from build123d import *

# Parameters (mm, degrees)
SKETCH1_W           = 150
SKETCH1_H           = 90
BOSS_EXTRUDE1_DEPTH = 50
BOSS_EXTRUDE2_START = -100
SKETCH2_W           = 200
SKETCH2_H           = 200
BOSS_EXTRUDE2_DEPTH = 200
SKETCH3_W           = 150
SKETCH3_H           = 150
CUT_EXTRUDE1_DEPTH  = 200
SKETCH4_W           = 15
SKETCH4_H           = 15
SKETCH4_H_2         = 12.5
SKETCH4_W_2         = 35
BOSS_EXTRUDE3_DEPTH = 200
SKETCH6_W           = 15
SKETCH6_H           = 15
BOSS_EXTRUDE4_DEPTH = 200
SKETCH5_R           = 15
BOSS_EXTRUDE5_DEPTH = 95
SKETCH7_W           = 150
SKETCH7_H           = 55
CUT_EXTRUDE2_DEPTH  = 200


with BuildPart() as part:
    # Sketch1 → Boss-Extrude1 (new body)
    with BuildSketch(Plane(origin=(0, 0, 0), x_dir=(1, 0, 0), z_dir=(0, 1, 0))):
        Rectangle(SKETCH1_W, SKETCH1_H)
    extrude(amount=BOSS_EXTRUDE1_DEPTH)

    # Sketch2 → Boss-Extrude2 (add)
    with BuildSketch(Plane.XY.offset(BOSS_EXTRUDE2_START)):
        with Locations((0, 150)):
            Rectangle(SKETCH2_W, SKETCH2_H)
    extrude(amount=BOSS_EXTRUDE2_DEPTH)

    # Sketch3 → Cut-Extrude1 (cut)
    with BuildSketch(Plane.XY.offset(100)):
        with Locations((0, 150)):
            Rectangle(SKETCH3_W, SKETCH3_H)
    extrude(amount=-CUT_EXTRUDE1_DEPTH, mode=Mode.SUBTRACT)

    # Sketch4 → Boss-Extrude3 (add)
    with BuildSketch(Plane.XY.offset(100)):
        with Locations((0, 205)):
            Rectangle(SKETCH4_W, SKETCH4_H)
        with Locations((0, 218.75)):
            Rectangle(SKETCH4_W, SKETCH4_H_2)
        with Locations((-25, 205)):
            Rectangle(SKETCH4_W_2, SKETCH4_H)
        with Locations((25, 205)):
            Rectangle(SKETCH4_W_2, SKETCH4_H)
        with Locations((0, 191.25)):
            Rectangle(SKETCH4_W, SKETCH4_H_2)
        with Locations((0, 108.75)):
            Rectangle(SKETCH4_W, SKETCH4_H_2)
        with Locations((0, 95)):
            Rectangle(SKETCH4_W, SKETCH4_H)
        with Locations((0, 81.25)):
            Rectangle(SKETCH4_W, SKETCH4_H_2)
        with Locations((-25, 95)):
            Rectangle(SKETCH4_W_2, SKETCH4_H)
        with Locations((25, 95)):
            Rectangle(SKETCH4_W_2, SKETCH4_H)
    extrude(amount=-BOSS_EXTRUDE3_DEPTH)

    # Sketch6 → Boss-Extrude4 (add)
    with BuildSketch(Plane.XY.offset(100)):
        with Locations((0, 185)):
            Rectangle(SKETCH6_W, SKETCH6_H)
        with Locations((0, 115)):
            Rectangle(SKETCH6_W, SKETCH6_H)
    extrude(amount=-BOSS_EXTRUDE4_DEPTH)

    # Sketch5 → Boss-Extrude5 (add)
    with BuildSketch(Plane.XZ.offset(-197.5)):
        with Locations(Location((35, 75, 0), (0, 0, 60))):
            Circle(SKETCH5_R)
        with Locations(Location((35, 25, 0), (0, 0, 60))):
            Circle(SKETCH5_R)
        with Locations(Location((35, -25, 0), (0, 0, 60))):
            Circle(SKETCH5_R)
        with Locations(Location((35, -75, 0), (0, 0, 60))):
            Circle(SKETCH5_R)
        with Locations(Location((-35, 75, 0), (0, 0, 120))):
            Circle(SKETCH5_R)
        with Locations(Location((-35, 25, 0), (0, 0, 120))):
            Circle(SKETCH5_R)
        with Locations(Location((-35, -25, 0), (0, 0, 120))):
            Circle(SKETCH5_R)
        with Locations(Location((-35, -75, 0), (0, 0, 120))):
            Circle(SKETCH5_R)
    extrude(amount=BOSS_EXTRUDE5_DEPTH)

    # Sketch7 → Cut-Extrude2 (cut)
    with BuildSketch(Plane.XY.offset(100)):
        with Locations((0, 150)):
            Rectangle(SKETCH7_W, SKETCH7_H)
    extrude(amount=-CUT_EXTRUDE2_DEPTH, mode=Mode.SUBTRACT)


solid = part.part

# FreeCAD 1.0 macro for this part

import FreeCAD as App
import Part
import Sketcher
from FreeCAD import Vector
Q = App.Units.Quantity

doc = App.newDocument("Part")
body = doc.addObject("PartDesign::Body", "Body")

# Sketch on XZ plane
sketch1 = body.newObject("Sketcher::SketchObject", "Sketch")
sketch1.AttachmentSupport = (doc.getObject("XZ_Plane"), [""])
sketch1.MapMode = "FlatFace"
sketch1.addGeometry([
    Part.LineSegment(Vector(-75, -45, 0), Vector(-75, 45, 0)),
    Part.LineSegment(Vector(-75, 45, 0), Vector(75, 45, 0)),
    Part.LineSegment(Vector(75, 45, 0), Vector(75, -45, 0)),
    Part.LineSegment(Vector(75, -45, 0), Vector(-75, -45, 0)),
], False)
sketch1.addConstraint([
    Sketcher.Constraint("Coincident", 0, 2, 1, 1),
    Sketcher.Constraint("Coincident", 1, 2, 2, 1),
    Sketcher.Constraint("Coincident", 2, 2, 3, 1),
    Sketcher.Constraint("Coincident", 3, 2, 0, 1),
    Sketcher.Constraint("Vertical", 0),
    Sketcher.Constraint("Horizontal", 1),
    Sketcher.Constraint("Vertical", 2),
    Sketcher.Constraint("Horizontal", 3),
    Sketcher.Constraint("Symmetric", 0, 2, 2, 2, -1, 1),
    Sketcher.Constraint("DistanceX", 1, 1, 1, 2, Q("150 mm")),
    Sketcher.Constraint("DistanceY", 0, 1, 0, 2, Q("90 mm")),
])
pad1 = body.newObject("PartDesign::Pad", "Pad")
pad1.Profile = sketch1
pad1.Length = 50
pad1.Reversed = True

# Sketch on XY plane
sketch2 = body.newObject("Sketcher::SketchObject", "Sketch001")
sketch2.AttachmentSupport = (doc.getObject("XY_Plane"), [""])
sketch2.MapMode = "FlatFace"
sketch2.AttachmentOffset = App.Placement(Vector(0, 0, -100), App.Rotation())
sketch2.addGeometry([
    Part.LineSegment(Vector(-100, 250, 0), Vector(-100, 50, 0)),
    Part.LineSegment(Vector(-100, 50, 0), Vector(100, 50, 0)),
    Part.LineSegment(Vector(100, 50, 0), Vector(100, 250, 0)),
    Part.LineSegment(Vector(100, 250, 0), Vector(-100, 250, 0)),
], False)
sketch2.addConstraint([
    Sketcher.Constraint("Coincident", 0, 2, 1, 1),
    Sketcher.Constraint("Coincident", 1, 2, 2, 1),
    Sketcher.Constraint("Coincident", 2, 2, 3, 1),
    Sketcher.Constraint("Coincident", 3, 2, 0, 1),
    Sketcher.Constraint("Vertical", 0),
    Sketcher.Constraint("Horizontal", 1),
    Sketcher.Constraint("Vertical", 2),
    Sketcher.Constraint("Horizontal", 3),
    Sketcher.Constraint("Equal", 3, 0),
    Sketcher.Constraint("DistanceX", 1, 1, 1, 2, Q("200 mm")),
    Sketcher.Constraint("DistanceX", 0, 2, -1, 1, Q("100 mm")),
    Sketcher.Constraint("DistanceY", -1, 1, 0, 2, Q("50 mm")),
])
pad2 = body.newObject("PartDesign::Pad", "Pad001")
pad2.Profile = sketch2
pad2.Length = 200

# Sketch on XY plane
sketch3 = body.newObject("Sketcher::SketchObject", "Sketch002")
sketch3.AttachmentSupport = (doc.getObject("XY_Plane"), [""])
sketch3.MapMode = "FlatFace"
sketch3.AttachmentOffset = App.Placement(Vector(0, 0, 100), App.Rotation())
sketch3.addGeometry([
    Part.LineSegment(Vector(-75, 225, 0), Vector(-75, 75, 0)),
    Part.LineSegment(Vector(-75, 75, 0), Vector(75, 75, 0)),
    Part.LineSegment(Vector(75, 75, 0), Vector(75, 225, 0)),
    Part.LineSegment(Vector(75, 225, 0), Vector(-75, 225, 0)),
], False)
sketch3.addConstraint([
    Sketcher.Constraint("Coincident", 0, 2, 1, 1),
    Sketcher.Constraint("Coincident", 1, 2, 2, 1),
    Sketcher.Constraint("Coincident", 2, 2, 3, 1),
    Sketcher.Constraint("Coincident", 3, 2, 0, 1),
    Sketcher.Constraint("Vertical", 0),
    Sketcher.Constraint("Horizontal", 1),
    Sketcher.Constraint("Vertical", 2),
    Sketcher.Constraint("Horizontal", 3),
    Sketcher.Constraint("Equal", 3, 0),
    Sketcher.Constraint("DistanceX", 1, 1, 1, 2, Q("150 mm")),
    Sketcher.Constraint("DistanceX", 0, 2, -1, 1, Q("75 mm")),
    Sketcher.Constraint("DistanceY", -1, 1, 0, 2, Q("75 mm")),
])
pocket1 = body.newObject("PartDesign::Pocket", "Pocket")
pocket1.Profile = sketch3
pocket1.Length = 200

# Sketch on XY plane
sketch4 = body.newObject("Sketcher::SketchObject", "Sketch003")
sketch4.AttachmentSupport = (doc.getObject("XY_Plane"), [""])
sketch4.MapMode = "FlatFace"
sketch4.AttachmentOffset = App.Placement(Vector(0, 0, 100), App.Rotation())
sketch4.addGeometry([
    Part.LineSegment(Vector(7.5, 212.5, 0), Vector(7.5, 225, 0)),  # 0
    Part.LineSegment(Vector(7.5, 225, 0), Vector(-7.5, 225, 0)),  # 1
    Part.LineSegment(Vector(-7.5, 225, 0), Vector(-7.5, 212.5, 0)),  # 2
    Part.LineSegment(Vector(-7.5, 212.5, 0), Vector(-42.5, 212.5, 0)),  # 3
    Part.LineSegment(Vector(-42.5, 212.5, 0), Vector(-42.5, 197.5, 0)),  # 4
    Part.LineSegment(Vector(-42.5, 197.5, 0), Vector(-7.5, 197.5, 0)),  # 5
    Part.LineSegment(Vector(-7.5, 197.5, 0), Vector(-7.5, 185, 0)),  # 6
    Part.LineSegment(Vector(-7.5, 185, 0), Vector(7.5, 185, 0)),  # 7
    Part.LineSegment(Vector(7.5, 185, 0), Vector(7.5, 197.5, 0)),  # 8
    Part.LineSegment(Vector(7.5, 197.5, 0), Vector(42.5, 197.5, 0)),  # 9
    Part.LineSegment(Vector(42.5, 197.5, 0), Vector(42.5, 212.5, 0)),  # 10
    Part.LineSegment(Vector(42.5, 212.5, 0), Vector(7.5, 212.5, 0)),  # 11
    Part.LineSegment(Vector(-7.5, 115, 0), Vector(-7.5, 102.5, 0)),  # 12
    Part.LineSegment(Vector(-7.5, 102.5, 0), Vector(-42.5, 102.5, 0)),  # 13
    Part.LineSegment(Vector(-42.5, 102.5, 0), Vector(-42.5, 87.5, 0)),  # 14
    Part.LineSegment(Vector(-42.5, 87.5, 0), Vector(-7.5, 87.5, 0)),  # 15
    Part.LineSegment(Vector(-7.5, 87.5, 0), Vector(-7.5, 75, 0)),  # 16
    Part.LineSegment(Vector(-7.5, 75, 0), Vector(7.5, 75, 0)),  # 17
    Part.LineSegment(Vector(7.5, 75, 0), Vector(7.5, 87.5, 0)),  # 18
    Part.LineSegment(Vector(7.5, 87.5, 0), Vector(42.5, 87.5, 0)),  # 19
    Part.LineSegment(Vector(42.5, 87.5, 0), Vector(42.5, 102.5, 0)),  # 20
    Part.LineSegment(Vector(42.5, 102.5, 0), Vector(7.5, 102.5, 0)),  # 21
    Part.LineSegment(Vector(7.5, 102.5, 0), Vector(7.5, 115, 0)),  # 22
    Part.LineSegment(Vector(7.5, 115, 0), Vector(-7.5, 115, 0)),  # 23
], False)
sketch4.addConstraint([
    Sketcher.Constraint("Coincident", 0, 2, 1, 1),
    Sketcher.Constraint("Coincident", 1, 2, 2, 1),
    Sketcher.Constraint("Coincident", 2, 2, 3, 1),
    Sketcher.Constraint("Coincident", 3, 2, 4, 1),
    Sketcher.Constraint("Coincident", 4, 2, 5, 1),
    Sketcher.Constraint("Coincident", 5, 2, 6, 1),
    Sketcher.Constraint("Coincident", 6, 2, 7, 1),
    Sketcher.Constraint("Coincident", 7, 2, 8, 1),
    Sketcher.Constraint("Coincident", 8, 2, 9, 1),
    Sketcher.Constraint("Coincident", 9, 2, 10, 1),
    Sketcher.Constraint("Coincident", 10, 2, 11, 1),
    Sketcher.Constraint("Coincident", 11, 2, 0, 1),
    Sketcher.Constraint("Coincident", 12, 2, 13, 1),
    Sketcher.Constraint("Coincident", 13, 2, 14, 1),
    Sketcher.Constraint("Coincident", 14, 2, 15, 1),
    Sketcher.Constraint("Coincident", 15, 2, 16, 1),
    Sketcher.Constraint("Coincident", 16, 2, 17, 1),
    Sketcher.Constraint("Coincident", 17, 2, 18, 1),
    Sketcher.Constraint("Coincident", 18, 2, 19, 1),
    Sketcher.Constraint("Coincident", 19, 2, 20, 1),
    Sketcher.Constraint("Coincident", 20, 2, 21, 1),
    Sketcher.Constraint("Coincident", 21, 2, 22, 1),
    Sketcher.Constraint("Coincident", 22, 2, 23, 1),
    Sketcher.Constraint("Coincident", 23, 2, 12, 1),
    Sketcher.Constraint("Vertical", 0),
    Sketcher.Constraint("Horizontal", 1),
    Sketcher.Constraint("Vertical", 2),
    Sketcher.Constraint("Horizontal", 3),
    Sketcher.Constraint("Vertical", 4),
    Sketcher.Constraint("Horizontal", 5),
    Sketcher.Constraint("Vertical", 6),
    Sketcher.Constraint("Horizontal", 7),
    Sketcher.Constraint("Vertical", 8),
    Sketcher.Constraint("Horizontal", 9),
    Sketcher.Constraint("Vertical", 10),
    Sketcher.Constraint("Horizontal", 11),
    Sketcher.Constraint("Vertical", 12),
    Sketcher.Constraint("Horizontal", 13),
    Sketcher.Constraint("Vertical", 14),
    Sketcher.Constraint("Horizontal", 15),
    Sketcher.Constraint("Vertical", 16),
    Sketcher.Constraint("Horizontal", 17),
    Sketcher.Constraint("Vertical", 18),
    Sketcher.Constraint("Horizontal", 19),
    Sketcher.Constraint("Vertical", 20),
    Sketcher.Constraint("Horizontal", 21),
    Sketcher.Constraint("Vertical", 22),
    Sketcher.Constraint("Horizontal", 23),
    Sketcher.Constraint("Symmetric", 5, 2, 8, 2, -2),
    Sketcher.Constraint("Symmetric", 3, 2, 10, 2, -2),
    Sketcher.Constraint("Symmetric", 15, 2, 18, 2, -2),
    Sketcher.Constraint("Symmetric", 13, 2, 20, 2, -2),
    Sketcher.Constraint("Vertical", 2, 2, 5, 2),
    Sketcher.Constraint("Vertical", 0, 2, 7, 2),
    Sketcher.Constraint("Vertical", 6, 2, 12, 2),
    Sketcher.Constraint("Vertical", 4, 2, 13, 2),
    Sketcher.Constraint("Vertical", 12, 2, 15, 2),
    Sketcher.Constraint("Vertical", 18, 2, 21, 2),
    Sketcher.Constraint("Equal", 23, 4),
    Sketcher.Constraint("Equal", 2, 6),
    Sketcher.Constraint("Equal", 8, 12),
    Sketcher.Constraint("Equal", 10, 14),
    Sketcher.Constraint("Equal", 12, 16),
    Sketcher.Constraint("DistanceX", 1, 2, 1, 1, Q("15 mm")),
    Sketcher.Constraint("DistanceX", 3, 2, 3, 1, Q("35 mm")),
    Sketcher.Constraint("DistanceY", 0, 1, 0, 2, Q("12.5 mm")),
    Sketcher.Constraint("DistanceY", -1, 1, 0, 2, Q("225 mm")),
    Sketcher.Constraint("DistanceY", -1, 1, 16, 2, Q("75 mm")),
])
pad3 = body.newObject("PartDesign::Pad", "Pad002")
pad3.Profile = sketch4
pad3.Length = 200
pad3.Reversed = True

# Sketch on XY plane
sketch5 = body.newObject("Sketcher::SketchObject", "Sketch004")
sketch5.AttachmentSupport = (doc.getObject("XY_Plane"), [""])
sketch5.MapMode = "FlatFace"
sketch5.AttachmentOffset = App.Placement(Vector(0, 0, 100), App.Rotation())
sketch5.addGeometry([
    Part.LineSegment(Vector(-7.5, 192.5, 0), Vector(-7.5, 177.5, 0)),  # 0
    Part.LineSegment(Vector(-7.5, 177.5, 0), Vector(7.5, 177.5, 0)),  # 1
    Part.LineSegment(Vector(7.5, 177.5, 0), Vector(7.5, 192.5, 0)),  # 2
    Part.LineSegment(Vector(7.5, 192.5, 0), Vector(-7.5, 192.5, 0)),  # 3
    Part.LineSegment(Vector(-7.5, 122.5, 0), Vector(-7.5, 107.5, 0)),  # 4
    Part.LineSegment(Vector(-7.5, 107.5, 0), Vector(7.5, 107.5, 0)),  # 5
    Part.LineSegment(Vector(7.5, 107.5, 0), Vector(7.5, 122.5, 0)),  # 6
    Part.LineSegment(Vector(7.5, 122.5, 0), Vector(-7.5, 122.5, 0)),  # 7
], False)
sketch5.addConstraint([
    Sketcher.Constraint("Coincident", 0, 2, 1, 1),
    Sketcher.Constraint("Coincident", 1, 2, 2, 1),
    Sketcher.Constraint("Coincident", 2, 2, 3, 1),
    Sketcher.Constraint("Coincident", 3, 2, 0, 1),
    Sketcher.Constraint("Coincident", 4, 2, 5, 1),
    Sketcher.Constraint("Coincident", 5, 2, 6, 1),
    Sketcher.Constraint("Coincident", 6, 2, 7, 1),
    Sketcher.Constraint("Coincident", 7, 2, 4, 1),
    Sketcher.Constraint("Vertical", 0),
    Sketcher.Constraint("Horizontal", 1),
    Sketcher.Constraint("Vertical", 2),
    Sketcher.Constraint("Horizontal", 3),
    Sketcher.Constraint("Vertical", 4),
    Sketcher.Constraint("Horizontal", 5),
    Sketcher.Constraint("Vertical", 6),
    Sketcher.Constraint("Horizontal", 7),
    Sketcher.Constraint("Vertical", 3, 2, 4, 2),
    Sketcher.Constraint("Vertical", 2, 2, 5, 2),
    Sketcher.Constraint("Equal", 7, 0),
    Sketcher.Constraint("Equal", 2, 4),
    Sketcher.Constraint("DistanceX", 1, 1, 1, 2, Q("15 mm")),
    Sketcher.Constraint("DistanceY", 4, 2, 0, 2, Q("70 mm")),
    Sketcher.Constraint("DistanceX", 0, 2, -1, 1, Q("7.5 mm")),
    Sketcher.Constraint("DistanceY", -1, 1, 0, 2, Q("177.5 mm")),
])
pad4 = body.newObject("PartDesign::Pad", "Pad003")
pad4.Profile = sketch5
pad4.Length = 200
pad4.Reversed = True

# Sketch on XZ plane
sketch6 = body.newObject("Sketcher::SketchObject", "Sketch005")
sketch6.AttachmentSupport = (doc.getObject("XZ_Plane"), [""])
sketch6.MapMode = "FlatFace"
sketch6.AttachmentOffset = App.Placement(Vector(0, 0, -197.5), App.Rotation())
sketch6.addGeometry([
    Part.Circle(Vector(35, 75, 0), Vector(0, 0, 1), 15),  # 0
    Part.Circle(Vector(35, 25, 0), Vector(0, 0, 1), 15),  # 1
    Part.Circle(Vector(35, -25, 0), Vector(0, 0, 1), 15),  # 2
    Part.Circle(Vector(35, -75, 0), Vector(0, 0, 1), 15),  # 3
    Part.Circle(Vector(-35, 75, 0), Vector(0, 0, 1), 15),  # 4
    Part.Circle(Vector(-35, 25, 0), Vector(0, 0, 1), 15),  # 5
    Part.Circle(Vector(-35, -25, 0), Vector(0, 0, 1), 15),  # 6
    Part.Circle(Vector(-35, -75, 0), Vector(0, 0, 1), 15),  # 7
], False)
sketch6.addConstraint([
    Sketcher.Constraint("Equal", 0, 1),
    Sketcher.Constraint("Equal", 1, 2),
    Sketcher.Constraint("Equal", 2, 3),
    Sketcher.Constraint("Equal", 3, 4),
    Sketcher.Constraint("Equal", 4, 5),
    Sketcher.Constraint("Equal", 5, 6),
    Sketcher.Constraint("Equal", 6, 7),
    Sketcher.Constraint("Symmetric", 3, 3, 4, 3, -1, 1),
    Sketcher.Constraint("Symmetric", 2, 3, 5, 3, -1, 1),
    Sketcher.Constraint("Symmetric", 1, 3, 6, 3, -1, 1),
    Sketcher.Constraint("Symmetric", 0, 3, 7, 3, -1, 1),
    Sketcher.Constraint("Symmetric", 0, 3, 4, 3, -2),
    Sketcher.Constraint("Symmetric", 1, 3, 5, 3, -2),
    Sketcher.Constraint("Vertical", 0, 3, 1, 3),
    Sketcher.Constraint("Diameter", 0, Q("30 mm")),
    Sketcher.Constraint("DistanceX", -1, 1, 0, 3, Q("35 mm")),
    Sketcher.Constraint("DistanceY", -1, 1, 0, 3, Q("75 mm")),
    Sketcher.Constraint("DistanceY", -1, 1, 1, 3, Q("25 mm")),
])
pad5 = body.newObject("PartDesign::Pad", "Pad004")
pad5.Profile = sketch6
pad5.Length = 95

# Sketch on XY plane
sketch7 = body.newObject("Sketcher::SketchObject", "Sketch006")
sketch7.AttachmentSupport = (doc.getObject("XY_Plane"), [""])
sketch7.MapMode = "FlatFace"
sketch7.AttachmentOffset = App.Placement(Vector(0, 0, 100), App.Rotation())
sketch7.addGeometry([
    Part.LineSegment(Vector(-75, 177.5, 0), Vector(-75, 122.5, 0)),
    Part.LineSegment(Vector(-75, 122.5, 0), Vector(75, 122.5, 0)),
    Part.LineSegment(Vector(75, 122.5, 0), Vector(75, 177.5, 0)),
    Part.LineSegment(Vector(75, 177.5, 0), Vector(-75, 177.5, 0)),
], False)
sketch7.addConstraint([
    Sketcher.Constraint("Coincident", 0, 2, 1, 1),
    Sketcher.Constraint("Coincident", 1, 2, 2, 1),
    Sketcher.Constraint("Coincident", 2, 2, 3, 1),
    Sketcher.Constraint("Coincident", 3, 2, 0, 1),
    Sketcher.Constraint("Vertical", 0),
    Sketcher.Constraint("Horizontal", 1),
    Sketcher.Constraint("Vertical", 2),
    Sketcher.Constraint("Horizontal", 3),
    Sketcher.Constraint("DistanceX", 1, 1, 1, 2, Q("150 mm")),
    Sketcher.Constraint("DistanceY", 0, 2, 0, 1, Q("55 mm")),
    Sketcher.Constraint("DistanceX", 0, 2, -1, 1, Q("75 mm")),
    Sketcher.Constraint("DistanceY", -1, 1, 0, 2, Q("122.5 mm")),
])
pocket2 = body.newObject("PartDesign::Pocket", "Pocket001")
pocket2.Profile = sketch7
pocket2.Length = 200

doc.recompute()
